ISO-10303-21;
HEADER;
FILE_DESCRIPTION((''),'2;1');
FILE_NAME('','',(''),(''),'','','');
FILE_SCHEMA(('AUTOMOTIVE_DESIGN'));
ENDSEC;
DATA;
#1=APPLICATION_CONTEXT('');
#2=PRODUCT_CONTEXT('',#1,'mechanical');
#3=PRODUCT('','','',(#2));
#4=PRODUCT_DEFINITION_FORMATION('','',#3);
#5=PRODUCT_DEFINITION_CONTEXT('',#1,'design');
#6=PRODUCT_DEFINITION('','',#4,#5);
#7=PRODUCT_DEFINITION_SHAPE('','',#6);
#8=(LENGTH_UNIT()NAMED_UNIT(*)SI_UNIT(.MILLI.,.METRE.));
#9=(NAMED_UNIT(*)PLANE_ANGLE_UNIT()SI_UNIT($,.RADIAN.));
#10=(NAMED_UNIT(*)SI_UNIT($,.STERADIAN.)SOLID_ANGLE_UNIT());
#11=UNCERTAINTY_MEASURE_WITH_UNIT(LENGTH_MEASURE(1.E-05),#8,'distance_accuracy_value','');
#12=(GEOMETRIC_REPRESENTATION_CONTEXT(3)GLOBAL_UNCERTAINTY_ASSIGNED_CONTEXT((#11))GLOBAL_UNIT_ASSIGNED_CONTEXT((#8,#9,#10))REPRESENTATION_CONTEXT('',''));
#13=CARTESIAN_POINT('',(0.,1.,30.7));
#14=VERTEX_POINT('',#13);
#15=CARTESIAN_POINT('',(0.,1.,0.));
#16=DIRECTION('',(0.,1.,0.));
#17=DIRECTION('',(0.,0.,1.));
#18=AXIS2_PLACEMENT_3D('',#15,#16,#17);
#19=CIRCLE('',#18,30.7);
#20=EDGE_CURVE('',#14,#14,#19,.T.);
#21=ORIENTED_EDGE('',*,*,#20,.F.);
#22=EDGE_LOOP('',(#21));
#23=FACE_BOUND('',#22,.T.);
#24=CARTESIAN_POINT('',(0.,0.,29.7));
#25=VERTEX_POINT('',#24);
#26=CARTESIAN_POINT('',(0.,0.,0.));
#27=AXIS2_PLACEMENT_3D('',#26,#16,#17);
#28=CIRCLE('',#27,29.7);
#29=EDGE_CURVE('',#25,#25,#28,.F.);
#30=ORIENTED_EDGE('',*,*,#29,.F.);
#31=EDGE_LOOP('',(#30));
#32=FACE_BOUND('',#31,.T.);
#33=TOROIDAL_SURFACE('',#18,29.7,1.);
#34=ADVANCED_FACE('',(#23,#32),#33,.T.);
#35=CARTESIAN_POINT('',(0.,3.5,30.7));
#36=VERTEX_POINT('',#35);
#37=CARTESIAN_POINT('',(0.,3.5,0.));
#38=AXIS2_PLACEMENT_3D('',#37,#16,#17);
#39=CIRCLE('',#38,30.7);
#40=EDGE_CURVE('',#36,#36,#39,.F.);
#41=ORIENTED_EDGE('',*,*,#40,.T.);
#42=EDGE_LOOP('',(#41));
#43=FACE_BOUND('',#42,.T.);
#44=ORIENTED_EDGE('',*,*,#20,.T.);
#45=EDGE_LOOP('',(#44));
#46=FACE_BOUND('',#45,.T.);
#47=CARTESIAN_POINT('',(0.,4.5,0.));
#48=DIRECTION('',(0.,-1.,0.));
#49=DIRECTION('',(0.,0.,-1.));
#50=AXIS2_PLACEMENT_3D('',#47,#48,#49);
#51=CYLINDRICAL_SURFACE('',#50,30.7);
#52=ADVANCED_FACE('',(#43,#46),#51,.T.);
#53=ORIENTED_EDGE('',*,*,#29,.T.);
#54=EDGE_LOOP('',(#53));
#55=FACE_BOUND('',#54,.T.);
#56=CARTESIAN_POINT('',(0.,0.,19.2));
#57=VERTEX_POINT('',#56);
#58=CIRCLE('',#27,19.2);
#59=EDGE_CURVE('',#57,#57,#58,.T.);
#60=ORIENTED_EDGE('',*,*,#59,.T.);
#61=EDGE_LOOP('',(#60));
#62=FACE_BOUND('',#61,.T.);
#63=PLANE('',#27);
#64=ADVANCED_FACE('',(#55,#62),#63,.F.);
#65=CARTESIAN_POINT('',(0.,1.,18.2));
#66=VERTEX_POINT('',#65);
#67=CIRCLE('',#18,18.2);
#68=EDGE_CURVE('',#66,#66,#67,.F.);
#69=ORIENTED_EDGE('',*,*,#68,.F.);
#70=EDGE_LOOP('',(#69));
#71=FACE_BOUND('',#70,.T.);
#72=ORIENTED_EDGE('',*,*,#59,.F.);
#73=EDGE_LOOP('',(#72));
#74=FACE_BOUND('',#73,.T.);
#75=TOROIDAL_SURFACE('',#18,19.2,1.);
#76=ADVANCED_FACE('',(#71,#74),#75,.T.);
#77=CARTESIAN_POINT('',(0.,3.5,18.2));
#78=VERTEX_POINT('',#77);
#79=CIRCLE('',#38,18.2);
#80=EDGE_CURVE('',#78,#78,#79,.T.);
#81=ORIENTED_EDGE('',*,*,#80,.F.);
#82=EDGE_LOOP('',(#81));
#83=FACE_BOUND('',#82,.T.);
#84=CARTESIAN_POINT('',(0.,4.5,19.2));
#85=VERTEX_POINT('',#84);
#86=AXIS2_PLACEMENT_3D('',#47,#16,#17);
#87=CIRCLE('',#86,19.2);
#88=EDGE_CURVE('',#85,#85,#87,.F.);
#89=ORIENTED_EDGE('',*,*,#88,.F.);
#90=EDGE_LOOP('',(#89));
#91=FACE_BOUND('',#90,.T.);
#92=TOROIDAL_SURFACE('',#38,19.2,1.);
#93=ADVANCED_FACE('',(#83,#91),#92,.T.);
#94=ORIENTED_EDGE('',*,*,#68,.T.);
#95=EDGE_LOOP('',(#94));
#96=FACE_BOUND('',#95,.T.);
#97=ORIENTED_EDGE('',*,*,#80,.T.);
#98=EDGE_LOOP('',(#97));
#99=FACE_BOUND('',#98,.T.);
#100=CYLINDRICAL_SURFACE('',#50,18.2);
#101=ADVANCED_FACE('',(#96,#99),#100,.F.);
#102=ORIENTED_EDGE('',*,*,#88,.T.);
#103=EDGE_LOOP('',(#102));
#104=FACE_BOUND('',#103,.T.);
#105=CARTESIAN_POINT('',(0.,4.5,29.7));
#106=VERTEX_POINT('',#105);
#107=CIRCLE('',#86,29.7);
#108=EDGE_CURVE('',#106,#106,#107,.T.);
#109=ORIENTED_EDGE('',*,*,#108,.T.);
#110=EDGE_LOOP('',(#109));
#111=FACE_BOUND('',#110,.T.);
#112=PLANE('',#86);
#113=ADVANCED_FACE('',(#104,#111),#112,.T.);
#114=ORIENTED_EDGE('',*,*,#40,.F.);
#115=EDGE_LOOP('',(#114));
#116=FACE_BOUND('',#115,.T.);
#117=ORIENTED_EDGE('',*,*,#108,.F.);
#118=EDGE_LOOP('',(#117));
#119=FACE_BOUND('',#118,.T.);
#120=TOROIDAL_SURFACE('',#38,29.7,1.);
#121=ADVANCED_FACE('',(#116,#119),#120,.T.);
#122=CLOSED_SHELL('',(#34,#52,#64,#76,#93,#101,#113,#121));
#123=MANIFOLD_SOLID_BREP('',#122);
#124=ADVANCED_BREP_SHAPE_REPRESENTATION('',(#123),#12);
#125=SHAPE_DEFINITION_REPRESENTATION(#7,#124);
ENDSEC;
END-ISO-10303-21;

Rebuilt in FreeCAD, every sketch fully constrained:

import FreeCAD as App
import Part
import Sketcher

V = App.Vector
Q = App.Units.Quantity


def edges_at(feature, points):
    """Names of the edges that pass closest to the given points."""
    edges = feature.Shape.Edges
    near = lambda p: min(range(len(edges)), key=lambda i: edges[i].distToShape(Part.Vertex(*p))[0])
    return sorted({f"Edge{near(p) + 1}" for p in points})

doc = App.newDocument("Part")
body = doc.addObject("PartDesign::Body", "Body")

# Sketch on XZ plane
sketch1 = doc.addObject("Sketcher::SketchObject", "Sketch")
body.addObject(sketch1)
sketch1.AttachmentSupport = (doc.XZ_Plane, [""])
sketch1.MapMode = "FlatFace"
sketch1.addGeometry(Part.Circle(V(0, 0, 0), V(0, 0, 1), 31), False)
sketch1.addGeometry(Part.Circle(V(0, 0, 0), V(0, 0, 1), 18), False)
sketch1.addConstraint(Sketcher.Constraint("Coincident", 0, 3, -1, 1))
sketch1.addConstraint(Sketcher.Constraint("Coincident", 1, 3, -1, 1))
sketch1.addConstraint(Sketcher.Constraint("Diameter", 0, Q("61.4 mm")))
sketch1.addConstraint(Sketcher.Constraint("Diameter", 1, Q("36.4 mm")))
pad1 = doc.addObject("PartDesign::Pad", "Pad")
body.addObject(pad1)
pad1.Profile = sketch1
pad1.Length = 4.5
pad1.Reversed = True
doc.recompute()

fillet = doc.addObject("PartDesign::Fillet", "Fillet")
body.addObject(fillet)
fillet.Base = (pad1, edges_at(pad1, [
    (0, 0, -30.7),
    (0, 4.5, -30.7),
    (0, 0, -18.2),
    (0, 4.5, -18.2),
]))
fillet.Radius = 1

doc.recompute()
